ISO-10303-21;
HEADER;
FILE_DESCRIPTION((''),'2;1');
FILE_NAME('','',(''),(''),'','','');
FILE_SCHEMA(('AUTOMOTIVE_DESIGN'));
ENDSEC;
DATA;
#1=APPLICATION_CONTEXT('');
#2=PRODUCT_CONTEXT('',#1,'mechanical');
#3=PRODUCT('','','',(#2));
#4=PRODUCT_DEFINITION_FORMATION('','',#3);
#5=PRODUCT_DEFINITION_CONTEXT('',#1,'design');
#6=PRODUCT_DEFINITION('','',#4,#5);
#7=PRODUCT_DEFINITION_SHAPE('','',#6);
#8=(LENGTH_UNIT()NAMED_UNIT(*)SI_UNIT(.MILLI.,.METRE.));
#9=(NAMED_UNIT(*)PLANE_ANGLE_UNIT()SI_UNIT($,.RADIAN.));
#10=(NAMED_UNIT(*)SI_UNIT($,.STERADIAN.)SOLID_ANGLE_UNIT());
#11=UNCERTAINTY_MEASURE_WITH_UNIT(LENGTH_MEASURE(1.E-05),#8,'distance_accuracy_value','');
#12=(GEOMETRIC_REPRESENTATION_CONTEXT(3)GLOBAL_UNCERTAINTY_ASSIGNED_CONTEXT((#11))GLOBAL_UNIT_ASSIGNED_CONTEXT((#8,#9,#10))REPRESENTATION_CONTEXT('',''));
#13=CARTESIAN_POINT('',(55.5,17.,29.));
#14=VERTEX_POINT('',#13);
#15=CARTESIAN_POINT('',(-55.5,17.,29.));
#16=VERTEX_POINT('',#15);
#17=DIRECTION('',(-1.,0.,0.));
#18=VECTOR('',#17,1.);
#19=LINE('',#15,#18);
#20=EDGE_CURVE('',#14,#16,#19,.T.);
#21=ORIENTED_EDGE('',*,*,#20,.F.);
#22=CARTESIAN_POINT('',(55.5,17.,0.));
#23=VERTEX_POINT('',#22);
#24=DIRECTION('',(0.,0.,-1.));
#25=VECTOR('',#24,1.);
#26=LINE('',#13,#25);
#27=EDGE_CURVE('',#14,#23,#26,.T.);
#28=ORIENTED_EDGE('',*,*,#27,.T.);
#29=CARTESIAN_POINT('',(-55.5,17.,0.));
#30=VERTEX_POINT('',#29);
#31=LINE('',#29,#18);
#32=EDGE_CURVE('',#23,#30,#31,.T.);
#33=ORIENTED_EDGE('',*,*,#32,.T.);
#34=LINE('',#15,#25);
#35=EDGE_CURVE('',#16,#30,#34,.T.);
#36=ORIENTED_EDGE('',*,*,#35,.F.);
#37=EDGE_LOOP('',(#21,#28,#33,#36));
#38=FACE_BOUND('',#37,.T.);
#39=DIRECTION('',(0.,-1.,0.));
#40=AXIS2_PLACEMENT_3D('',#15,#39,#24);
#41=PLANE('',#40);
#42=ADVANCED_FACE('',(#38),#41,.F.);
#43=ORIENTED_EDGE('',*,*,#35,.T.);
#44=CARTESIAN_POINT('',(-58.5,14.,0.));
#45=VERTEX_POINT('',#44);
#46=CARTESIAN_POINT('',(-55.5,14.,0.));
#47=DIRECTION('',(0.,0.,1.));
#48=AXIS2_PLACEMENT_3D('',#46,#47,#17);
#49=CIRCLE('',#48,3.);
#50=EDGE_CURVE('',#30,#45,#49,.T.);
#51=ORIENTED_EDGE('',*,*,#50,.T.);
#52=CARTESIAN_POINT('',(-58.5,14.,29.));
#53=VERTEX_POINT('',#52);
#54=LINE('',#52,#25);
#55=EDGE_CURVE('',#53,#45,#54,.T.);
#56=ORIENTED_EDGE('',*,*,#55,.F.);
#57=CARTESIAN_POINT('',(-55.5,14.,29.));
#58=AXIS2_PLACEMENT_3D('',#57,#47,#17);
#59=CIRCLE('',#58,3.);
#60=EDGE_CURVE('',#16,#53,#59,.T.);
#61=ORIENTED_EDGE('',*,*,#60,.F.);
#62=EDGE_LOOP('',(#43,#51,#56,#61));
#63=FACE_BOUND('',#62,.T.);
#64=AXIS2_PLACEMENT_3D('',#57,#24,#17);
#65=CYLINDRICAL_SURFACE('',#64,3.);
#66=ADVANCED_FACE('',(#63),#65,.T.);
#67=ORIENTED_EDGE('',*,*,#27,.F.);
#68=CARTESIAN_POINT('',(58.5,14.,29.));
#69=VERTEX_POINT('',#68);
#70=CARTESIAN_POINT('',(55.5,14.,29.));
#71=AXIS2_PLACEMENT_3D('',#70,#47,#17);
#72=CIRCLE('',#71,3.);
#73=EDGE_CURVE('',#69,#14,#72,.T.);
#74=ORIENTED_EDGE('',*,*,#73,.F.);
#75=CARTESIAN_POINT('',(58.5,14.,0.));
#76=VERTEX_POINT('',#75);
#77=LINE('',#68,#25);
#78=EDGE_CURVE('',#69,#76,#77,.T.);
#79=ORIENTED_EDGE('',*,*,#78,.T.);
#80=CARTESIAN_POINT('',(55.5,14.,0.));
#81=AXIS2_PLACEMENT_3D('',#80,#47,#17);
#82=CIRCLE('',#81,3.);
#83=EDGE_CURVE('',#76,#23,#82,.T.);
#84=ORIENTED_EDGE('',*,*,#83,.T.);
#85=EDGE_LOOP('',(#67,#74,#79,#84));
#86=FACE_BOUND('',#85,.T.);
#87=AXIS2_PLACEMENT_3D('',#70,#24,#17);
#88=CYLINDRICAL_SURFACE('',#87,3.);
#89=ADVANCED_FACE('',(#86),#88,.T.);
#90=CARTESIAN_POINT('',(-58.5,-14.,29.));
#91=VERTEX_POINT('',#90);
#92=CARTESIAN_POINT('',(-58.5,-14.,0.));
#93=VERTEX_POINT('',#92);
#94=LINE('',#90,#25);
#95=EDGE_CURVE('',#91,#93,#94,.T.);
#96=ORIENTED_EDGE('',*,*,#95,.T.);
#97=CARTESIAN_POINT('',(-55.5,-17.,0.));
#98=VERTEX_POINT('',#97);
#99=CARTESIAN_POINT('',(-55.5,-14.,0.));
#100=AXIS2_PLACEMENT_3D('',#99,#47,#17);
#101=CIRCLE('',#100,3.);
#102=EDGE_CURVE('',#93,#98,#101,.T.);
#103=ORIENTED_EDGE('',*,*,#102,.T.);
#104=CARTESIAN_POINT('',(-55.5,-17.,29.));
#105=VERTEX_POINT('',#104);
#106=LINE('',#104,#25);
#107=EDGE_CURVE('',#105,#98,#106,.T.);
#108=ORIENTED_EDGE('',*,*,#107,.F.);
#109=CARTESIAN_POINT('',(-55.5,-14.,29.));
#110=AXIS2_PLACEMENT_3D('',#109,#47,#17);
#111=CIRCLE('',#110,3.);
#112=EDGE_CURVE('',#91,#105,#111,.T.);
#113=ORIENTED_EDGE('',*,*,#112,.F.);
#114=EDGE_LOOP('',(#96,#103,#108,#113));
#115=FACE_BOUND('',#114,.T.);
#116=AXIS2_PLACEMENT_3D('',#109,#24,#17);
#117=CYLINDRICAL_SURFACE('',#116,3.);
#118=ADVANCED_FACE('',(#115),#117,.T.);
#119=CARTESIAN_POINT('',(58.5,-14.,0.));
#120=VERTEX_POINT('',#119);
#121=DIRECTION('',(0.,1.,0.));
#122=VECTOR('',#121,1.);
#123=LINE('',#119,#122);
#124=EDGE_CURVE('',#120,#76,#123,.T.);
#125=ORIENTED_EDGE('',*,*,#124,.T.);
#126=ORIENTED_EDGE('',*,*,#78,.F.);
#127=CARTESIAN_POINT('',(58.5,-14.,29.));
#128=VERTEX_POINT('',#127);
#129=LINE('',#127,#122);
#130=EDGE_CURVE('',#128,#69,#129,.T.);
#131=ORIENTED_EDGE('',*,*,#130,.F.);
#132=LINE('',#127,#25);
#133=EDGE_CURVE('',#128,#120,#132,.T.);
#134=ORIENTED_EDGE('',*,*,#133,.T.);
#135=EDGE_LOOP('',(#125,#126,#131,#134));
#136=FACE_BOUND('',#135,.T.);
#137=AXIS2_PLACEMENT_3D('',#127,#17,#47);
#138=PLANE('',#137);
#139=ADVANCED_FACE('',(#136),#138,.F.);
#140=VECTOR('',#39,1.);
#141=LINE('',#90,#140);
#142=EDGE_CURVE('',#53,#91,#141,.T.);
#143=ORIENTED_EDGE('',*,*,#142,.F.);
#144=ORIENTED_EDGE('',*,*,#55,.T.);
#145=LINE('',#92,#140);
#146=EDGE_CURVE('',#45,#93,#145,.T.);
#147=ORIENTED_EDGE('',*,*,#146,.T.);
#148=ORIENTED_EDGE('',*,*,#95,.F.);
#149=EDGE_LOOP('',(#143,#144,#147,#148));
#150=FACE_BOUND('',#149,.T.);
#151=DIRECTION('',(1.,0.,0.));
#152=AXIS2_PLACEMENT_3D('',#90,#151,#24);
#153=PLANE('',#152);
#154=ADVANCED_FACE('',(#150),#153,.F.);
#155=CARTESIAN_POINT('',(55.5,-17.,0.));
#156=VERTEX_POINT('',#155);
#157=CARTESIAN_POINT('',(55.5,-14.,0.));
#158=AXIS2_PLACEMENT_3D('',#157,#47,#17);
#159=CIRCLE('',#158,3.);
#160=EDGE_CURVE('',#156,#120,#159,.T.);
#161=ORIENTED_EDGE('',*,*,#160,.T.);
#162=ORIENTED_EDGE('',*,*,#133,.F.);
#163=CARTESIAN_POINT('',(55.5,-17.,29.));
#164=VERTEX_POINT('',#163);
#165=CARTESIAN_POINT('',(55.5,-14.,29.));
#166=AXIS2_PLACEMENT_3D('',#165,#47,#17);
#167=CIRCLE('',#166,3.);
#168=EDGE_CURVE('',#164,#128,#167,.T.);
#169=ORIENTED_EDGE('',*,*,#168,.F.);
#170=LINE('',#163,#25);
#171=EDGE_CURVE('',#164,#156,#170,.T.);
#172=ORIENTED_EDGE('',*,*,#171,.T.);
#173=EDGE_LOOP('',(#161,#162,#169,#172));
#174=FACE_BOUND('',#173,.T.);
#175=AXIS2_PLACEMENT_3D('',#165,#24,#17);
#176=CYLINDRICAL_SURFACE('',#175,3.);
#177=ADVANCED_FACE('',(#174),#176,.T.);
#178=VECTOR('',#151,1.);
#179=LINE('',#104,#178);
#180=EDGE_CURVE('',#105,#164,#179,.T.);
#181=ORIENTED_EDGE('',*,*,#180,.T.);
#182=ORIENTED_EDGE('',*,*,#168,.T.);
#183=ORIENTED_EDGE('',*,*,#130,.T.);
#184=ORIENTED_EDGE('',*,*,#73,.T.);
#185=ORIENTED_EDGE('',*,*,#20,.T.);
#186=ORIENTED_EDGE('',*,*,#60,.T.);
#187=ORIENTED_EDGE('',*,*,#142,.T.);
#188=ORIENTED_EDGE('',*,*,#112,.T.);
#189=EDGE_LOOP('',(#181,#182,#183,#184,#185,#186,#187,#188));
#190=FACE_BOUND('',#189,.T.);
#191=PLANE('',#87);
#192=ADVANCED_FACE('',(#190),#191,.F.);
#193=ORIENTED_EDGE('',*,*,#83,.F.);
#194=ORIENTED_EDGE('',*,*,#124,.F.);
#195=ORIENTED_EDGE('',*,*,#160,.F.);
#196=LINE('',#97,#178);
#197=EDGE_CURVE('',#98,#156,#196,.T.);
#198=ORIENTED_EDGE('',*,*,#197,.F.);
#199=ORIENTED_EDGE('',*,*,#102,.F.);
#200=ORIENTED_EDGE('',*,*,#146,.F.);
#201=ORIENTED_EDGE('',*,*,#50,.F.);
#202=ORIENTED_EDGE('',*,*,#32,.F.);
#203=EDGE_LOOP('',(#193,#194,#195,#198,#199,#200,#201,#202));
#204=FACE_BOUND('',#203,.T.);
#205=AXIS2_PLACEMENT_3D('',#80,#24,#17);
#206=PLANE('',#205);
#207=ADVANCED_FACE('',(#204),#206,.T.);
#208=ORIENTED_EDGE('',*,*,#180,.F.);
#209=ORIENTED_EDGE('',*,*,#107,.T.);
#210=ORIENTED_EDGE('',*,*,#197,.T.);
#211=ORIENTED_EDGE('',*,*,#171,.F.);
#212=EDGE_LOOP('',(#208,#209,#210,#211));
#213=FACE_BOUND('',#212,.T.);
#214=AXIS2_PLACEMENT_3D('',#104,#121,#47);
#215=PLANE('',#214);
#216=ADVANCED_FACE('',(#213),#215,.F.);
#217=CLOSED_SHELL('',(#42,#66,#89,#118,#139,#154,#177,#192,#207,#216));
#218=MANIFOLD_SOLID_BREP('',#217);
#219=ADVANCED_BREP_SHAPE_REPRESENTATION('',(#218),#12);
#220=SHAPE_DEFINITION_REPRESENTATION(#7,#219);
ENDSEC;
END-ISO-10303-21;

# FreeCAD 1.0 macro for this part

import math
import FreeCAD as App
import Part
import Sketcher
from FreeCAD import Vector
Q = App.Units.Quantity

doc = App.newDocument("Part")
body = doc.addObject("PartDesign::Body", "Body")

# Sketch on XY plane
sketch1 = body.newObject("Sketcher::SketchObject", "Sketch")
sketch1.AttachmentSupport = (doc.getObject("XY_Plane"), [""])
sketch1.MapMode = "FlatFace"
sketch1.addGeometry(Part.LineSegment(Vector(-55.5, -17, 0), Vector(55.5, -17, 0)), False)
sketch1.addGeometry(Part.ArcOfCircle(Part.Circle(Vector(55.5, -14, 0), Vector(0, 0, 1), 3), math.radians(-90), math.radians(0)), False)
sketch1.addGeometry(Part.LineSegment(Vector(58.5, -14, 0), Vector(58.5, 14, 0)), False)
sketch1.addGeometry(Part.ArcOfCircle(Part.Circle(Vector(55.5, 14, 0), Vector(0, 0, 1), 3), math.radians(0), math.radians(90)), False)
sketch1.addGeometry(Part.LineSegment(Vector(55.5, 17, 0), Vector(-55.5, 17, 0)), False)
sketch1.addGeometry(Part.ArcOfCircle(Part.Circle(Vector(-55.5, 14, 0), Vector(0, 0, 1), 3), math.radians(90), math.radians(180)), False)
sketch1.addGeometry(Part.LineSegment(Vector(-58.5, 14, 0), Vector(-58.5, -14, 0)), False)
sketch1.addGeometry(Part.ArcOfCircle(Part.Circle(Vector(-55.5, -14, 0), Vector(0, 0, 1), 3), math.radians(180), math.radians(270)), False)
sketch1.addConstraint(Sketcher.Constraint("Tangent", 0, 2, 1, 1))
sketch1.addConstraint(Sketcher.Constraint("Tangent", 1, 2, 2, 1))
sketch1.addConstraint(Sketcher.Constraint("Tangent", 2, 2, 3, 1))
sketch1.addConstraint(Sketcher.Constraint("Tangent", 3, 2, 4, 1))
sketch1.addConstraint(Sketcher.Constraint("Tangent", 4, 2, 5, 1))
sketch1.addConstraint(Sketcher.Constraint("Tangent", 5, 2, 6, 1))
sketch1.addConstraint(Sketcher.Constraint("Tangent", 6, 2, 7, 1))
sketch1.addConstraint(Sketcher.Constraint("Tangent", 7, 2, 0, 1))
sketch1.addConstraint(Sketcher.Constraint("Horizontal", 0))
sketch1.addConstraint(Sketcher.Constraint("Vertical", 2))
sketch1.addConstraint(Sketcher.Constraint("Horizontal", 4))
sketch1.addConstraint(Sketcher.Constraint("Vertical", 6))
sketch1.addConstraint(Sketcher.Constraint("Equal", 1, 3))
sketch1.addConstraint(Sketcher.Constraint("Equal", 3, 5))
sketch1.addConstraint(Sketcher.Constraint("Equal", 5, 7))
sketch1.addConstraint(Sketcher.Constraint("Symmetric", 1, 3, 5, 3, -1, 1))
sketch1.addConstraint(Sketcher.Constraint("Radius", 1, Q("3 mm")))
sketch1.addConstraint(Sketcher.Constraint("DistanceX", 0, 1, 0, 2, Q("111 mm")))
sketch1.addConstraint(Sketcher.Constraint("DistanceY", 2, 1, 2, 2, Q("28 mm")))
pad1 = body.newObject("PartDesign::Pad", "Pad")
pad1.Profile = sketch1
pad1.Length = 29

doc.recompute()
